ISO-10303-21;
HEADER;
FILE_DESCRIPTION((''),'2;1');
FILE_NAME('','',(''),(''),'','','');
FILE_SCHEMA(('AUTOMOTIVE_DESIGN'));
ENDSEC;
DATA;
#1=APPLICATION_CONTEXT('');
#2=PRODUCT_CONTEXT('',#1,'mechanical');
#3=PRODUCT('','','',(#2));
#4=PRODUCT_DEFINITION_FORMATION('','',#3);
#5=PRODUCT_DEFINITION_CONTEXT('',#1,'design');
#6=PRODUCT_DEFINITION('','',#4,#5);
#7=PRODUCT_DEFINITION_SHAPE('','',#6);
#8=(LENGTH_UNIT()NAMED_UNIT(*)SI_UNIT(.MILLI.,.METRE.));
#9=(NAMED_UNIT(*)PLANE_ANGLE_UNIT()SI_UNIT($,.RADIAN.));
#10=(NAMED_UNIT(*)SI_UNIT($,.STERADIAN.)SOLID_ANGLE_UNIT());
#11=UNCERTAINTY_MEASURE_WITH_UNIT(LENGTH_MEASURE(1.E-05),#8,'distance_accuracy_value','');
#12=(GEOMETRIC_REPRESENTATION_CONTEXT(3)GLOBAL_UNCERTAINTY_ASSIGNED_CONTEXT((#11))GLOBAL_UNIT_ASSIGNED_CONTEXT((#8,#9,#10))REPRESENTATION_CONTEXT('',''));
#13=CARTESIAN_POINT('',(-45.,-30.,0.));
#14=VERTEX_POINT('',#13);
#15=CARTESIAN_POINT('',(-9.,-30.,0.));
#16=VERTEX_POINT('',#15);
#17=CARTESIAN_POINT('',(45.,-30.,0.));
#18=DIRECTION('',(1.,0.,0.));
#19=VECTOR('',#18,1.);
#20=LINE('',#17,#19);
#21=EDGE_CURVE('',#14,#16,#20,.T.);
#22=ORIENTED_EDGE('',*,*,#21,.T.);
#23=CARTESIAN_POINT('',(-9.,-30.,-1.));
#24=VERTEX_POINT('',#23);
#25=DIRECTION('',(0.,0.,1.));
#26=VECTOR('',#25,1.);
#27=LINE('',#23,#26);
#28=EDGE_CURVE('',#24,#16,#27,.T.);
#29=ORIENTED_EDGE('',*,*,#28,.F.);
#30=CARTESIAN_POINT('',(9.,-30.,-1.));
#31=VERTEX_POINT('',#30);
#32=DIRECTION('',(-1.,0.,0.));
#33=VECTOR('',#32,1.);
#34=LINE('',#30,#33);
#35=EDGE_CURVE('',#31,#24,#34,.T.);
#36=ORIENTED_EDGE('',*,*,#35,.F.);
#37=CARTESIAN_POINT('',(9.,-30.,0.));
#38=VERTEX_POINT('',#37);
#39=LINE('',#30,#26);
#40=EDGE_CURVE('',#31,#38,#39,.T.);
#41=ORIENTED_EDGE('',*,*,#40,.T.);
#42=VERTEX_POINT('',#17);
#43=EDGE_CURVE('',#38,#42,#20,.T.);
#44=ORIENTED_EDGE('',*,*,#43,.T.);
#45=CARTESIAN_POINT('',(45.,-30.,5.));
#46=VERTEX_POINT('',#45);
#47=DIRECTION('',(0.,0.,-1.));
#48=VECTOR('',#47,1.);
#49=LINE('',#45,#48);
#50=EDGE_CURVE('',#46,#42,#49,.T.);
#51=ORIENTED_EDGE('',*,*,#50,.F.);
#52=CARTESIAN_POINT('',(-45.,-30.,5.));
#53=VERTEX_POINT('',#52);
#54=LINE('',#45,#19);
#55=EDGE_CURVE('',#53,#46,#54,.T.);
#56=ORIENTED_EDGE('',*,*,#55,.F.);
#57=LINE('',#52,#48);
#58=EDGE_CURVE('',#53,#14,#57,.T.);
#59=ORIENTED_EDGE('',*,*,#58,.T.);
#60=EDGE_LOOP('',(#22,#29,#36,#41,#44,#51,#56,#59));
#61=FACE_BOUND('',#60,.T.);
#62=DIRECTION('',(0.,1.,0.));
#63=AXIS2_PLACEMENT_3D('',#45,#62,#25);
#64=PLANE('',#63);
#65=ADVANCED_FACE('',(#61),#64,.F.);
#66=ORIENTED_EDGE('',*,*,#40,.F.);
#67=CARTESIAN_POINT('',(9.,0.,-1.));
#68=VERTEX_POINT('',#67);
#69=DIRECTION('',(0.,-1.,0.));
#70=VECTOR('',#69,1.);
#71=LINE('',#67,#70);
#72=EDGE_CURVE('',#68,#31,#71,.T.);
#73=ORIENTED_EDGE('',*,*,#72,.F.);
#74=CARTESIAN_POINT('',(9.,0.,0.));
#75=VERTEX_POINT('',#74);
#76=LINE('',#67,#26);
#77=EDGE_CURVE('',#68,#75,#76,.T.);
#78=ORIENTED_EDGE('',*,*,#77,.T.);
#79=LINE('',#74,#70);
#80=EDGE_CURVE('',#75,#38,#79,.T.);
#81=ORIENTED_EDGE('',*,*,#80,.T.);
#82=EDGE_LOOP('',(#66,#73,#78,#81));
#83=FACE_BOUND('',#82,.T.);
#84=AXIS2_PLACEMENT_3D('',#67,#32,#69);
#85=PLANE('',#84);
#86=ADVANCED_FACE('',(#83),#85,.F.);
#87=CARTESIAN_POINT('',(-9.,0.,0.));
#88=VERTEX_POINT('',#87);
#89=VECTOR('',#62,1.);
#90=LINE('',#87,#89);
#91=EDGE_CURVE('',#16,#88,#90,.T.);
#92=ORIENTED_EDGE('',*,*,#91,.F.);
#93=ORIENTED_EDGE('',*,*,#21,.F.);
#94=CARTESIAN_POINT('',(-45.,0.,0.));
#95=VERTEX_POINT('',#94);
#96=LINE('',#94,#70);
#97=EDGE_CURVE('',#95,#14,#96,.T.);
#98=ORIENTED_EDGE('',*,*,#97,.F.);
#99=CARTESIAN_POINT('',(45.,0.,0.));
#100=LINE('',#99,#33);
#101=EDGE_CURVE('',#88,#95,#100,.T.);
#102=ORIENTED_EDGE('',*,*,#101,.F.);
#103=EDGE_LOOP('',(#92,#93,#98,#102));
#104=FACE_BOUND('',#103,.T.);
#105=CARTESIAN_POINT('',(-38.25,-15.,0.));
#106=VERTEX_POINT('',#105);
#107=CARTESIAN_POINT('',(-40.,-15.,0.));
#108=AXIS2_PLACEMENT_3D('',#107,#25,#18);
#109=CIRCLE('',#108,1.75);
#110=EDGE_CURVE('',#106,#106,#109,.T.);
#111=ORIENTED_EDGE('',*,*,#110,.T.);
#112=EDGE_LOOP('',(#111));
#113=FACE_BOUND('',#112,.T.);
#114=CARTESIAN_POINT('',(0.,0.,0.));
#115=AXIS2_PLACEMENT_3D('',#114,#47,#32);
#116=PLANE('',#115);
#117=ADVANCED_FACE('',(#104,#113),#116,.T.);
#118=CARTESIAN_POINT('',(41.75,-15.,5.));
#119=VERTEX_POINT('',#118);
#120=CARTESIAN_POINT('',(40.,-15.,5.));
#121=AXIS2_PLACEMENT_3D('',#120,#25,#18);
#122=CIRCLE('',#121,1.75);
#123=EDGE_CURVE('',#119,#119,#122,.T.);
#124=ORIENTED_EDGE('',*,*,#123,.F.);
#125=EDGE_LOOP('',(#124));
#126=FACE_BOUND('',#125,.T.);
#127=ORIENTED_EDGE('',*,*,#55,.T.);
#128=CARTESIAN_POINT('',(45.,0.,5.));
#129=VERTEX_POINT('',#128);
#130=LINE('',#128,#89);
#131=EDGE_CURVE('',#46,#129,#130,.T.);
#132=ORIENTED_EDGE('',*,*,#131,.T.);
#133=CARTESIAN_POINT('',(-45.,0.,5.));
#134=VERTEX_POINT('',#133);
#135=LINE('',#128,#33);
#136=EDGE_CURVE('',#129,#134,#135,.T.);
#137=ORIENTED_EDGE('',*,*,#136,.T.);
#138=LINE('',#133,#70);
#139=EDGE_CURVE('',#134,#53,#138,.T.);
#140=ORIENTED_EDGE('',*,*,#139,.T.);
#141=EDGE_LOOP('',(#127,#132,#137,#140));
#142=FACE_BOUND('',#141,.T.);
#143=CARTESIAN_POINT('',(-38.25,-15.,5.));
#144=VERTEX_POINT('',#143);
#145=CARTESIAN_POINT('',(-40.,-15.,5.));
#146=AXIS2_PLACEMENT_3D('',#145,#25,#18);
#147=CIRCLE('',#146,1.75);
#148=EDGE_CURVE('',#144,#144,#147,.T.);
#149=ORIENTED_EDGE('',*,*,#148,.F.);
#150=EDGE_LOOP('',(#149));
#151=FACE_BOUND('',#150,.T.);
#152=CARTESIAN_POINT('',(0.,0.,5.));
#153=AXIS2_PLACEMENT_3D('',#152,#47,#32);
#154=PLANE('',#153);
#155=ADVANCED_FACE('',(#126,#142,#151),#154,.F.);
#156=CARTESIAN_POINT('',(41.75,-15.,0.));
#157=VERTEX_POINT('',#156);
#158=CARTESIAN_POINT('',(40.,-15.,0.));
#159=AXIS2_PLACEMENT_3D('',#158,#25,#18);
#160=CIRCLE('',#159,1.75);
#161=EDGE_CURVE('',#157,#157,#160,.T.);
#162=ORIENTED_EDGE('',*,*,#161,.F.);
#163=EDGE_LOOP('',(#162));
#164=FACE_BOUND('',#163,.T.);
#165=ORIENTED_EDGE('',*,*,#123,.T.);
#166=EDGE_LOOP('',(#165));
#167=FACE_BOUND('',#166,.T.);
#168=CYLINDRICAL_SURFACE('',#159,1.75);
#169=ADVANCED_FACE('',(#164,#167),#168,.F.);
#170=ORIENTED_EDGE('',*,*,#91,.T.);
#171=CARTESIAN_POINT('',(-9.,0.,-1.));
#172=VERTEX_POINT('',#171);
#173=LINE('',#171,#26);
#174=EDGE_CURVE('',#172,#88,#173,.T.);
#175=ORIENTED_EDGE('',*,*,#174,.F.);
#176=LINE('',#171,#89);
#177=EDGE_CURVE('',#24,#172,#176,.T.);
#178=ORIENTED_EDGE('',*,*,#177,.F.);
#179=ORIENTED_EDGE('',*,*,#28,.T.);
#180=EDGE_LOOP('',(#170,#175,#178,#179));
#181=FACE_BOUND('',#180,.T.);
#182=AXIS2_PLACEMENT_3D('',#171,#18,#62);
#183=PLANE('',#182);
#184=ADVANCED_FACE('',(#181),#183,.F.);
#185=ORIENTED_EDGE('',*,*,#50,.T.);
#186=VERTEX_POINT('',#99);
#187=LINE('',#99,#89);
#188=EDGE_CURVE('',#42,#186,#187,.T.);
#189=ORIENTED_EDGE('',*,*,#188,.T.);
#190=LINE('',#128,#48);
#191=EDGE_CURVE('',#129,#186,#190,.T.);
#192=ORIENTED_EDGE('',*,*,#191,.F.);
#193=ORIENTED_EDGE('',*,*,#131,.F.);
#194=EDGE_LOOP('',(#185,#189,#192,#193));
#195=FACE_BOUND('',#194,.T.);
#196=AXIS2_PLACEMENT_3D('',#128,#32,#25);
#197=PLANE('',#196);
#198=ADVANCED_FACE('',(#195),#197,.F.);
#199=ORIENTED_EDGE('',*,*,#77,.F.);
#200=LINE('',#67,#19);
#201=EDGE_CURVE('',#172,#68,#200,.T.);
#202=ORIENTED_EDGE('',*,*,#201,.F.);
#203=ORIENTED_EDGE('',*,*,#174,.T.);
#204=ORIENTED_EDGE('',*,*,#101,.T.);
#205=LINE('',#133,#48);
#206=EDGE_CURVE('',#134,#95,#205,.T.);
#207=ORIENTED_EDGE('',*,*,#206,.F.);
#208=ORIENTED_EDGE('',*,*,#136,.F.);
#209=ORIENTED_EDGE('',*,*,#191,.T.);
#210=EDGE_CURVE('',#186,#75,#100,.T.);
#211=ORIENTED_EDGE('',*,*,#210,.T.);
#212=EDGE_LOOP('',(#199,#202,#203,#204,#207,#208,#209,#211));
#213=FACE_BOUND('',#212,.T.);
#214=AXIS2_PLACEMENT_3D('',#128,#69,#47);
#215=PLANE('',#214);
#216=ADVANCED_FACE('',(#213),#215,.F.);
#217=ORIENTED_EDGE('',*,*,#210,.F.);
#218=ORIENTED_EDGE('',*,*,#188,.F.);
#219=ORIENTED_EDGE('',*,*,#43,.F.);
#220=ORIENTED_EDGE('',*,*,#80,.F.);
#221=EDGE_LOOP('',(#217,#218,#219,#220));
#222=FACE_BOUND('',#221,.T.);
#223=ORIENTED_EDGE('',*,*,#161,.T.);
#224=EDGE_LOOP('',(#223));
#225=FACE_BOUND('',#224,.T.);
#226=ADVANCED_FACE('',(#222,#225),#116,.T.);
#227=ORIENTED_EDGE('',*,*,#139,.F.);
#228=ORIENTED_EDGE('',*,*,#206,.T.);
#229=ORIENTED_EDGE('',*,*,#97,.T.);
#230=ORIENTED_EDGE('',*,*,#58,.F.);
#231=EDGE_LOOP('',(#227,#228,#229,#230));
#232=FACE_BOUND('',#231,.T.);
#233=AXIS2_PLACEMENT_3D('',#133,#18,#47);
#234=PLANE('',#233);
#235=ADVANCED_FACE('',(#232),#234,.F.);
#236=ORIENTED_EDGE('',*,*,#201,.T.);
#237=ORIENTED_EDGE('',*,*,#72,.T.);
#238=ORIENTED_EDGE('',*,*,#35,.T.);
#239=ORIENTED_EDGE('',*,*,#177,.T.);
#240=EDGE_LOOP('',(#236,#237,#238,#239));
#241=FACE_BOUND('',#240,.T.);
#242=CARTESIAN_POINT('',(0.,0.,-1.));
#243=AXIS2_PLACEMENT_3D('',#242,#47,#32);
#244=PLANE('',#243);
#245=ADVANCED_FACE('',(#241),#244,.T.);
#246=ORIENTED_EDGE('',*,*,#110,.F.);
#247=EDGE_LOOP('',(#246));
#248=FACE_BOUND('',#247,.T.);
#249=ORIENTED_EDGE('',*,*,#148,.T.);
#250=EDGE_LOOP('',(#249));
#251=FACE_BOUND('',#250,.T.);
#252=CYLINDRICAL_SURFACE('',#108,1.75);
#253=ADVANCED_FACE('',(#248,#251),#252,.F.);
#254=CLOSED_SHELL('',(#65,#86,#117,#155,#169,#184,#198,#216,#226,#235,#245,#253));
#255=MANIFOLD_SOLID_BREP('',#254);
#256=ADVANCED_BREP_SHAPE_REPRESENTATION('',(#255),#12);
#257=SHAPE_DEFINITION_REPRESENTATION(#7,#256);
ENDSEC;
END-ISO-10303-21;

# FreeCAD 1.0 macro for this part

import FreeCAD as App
import Part
import Sketcher
from FreeCAD import Vector
Q = App.Units.Quantity


def add_polygon(sketch, points):
    """Adds a closed chain of lines whose ends are joined by coincident constraints."""
    first, n = sketch.GeometryCount, len(points)
    for a, b in zip(points, points[1:] + points[:1]):
        sketch.addGeometry(Part.LineSegment(App.Vector(*a, 0), App.Vector(*b, 0)), False)
    for i in range(n):
        sketch.addConstraint(Sketcher.Constraint("Coincident", first + i, 2, first + (i + 1) % n, 1))

doc = App.newDocument("Part")
body = doc.addObject("PartDesign::Body", "Body")

sketch1 = body.newObject("Sketcher::SketchObject", "Sketch")
sketch1.AttachmentSupport = (doc.getObject("XY_Plane"), [""])
sketch1.MapMode = "FlatFace"
add_polygon(sketch1, [(-45, 0), (-45, -30), (45, -30), (45, 0)])
sketch1.addConstraint(Sketcher.Constraint("Vertical", 0))
sketch1.addConstraint(Sketcher.Constraint("Horizontal", 1))
sketch1.addConstraint(Sketcher.Constraint("Vertical", 2))
sketch1.addConstraint(Sketcher.Constraint("Horizontal", 3))
sketch1.addConstraint(Sketcher.Constraint("Symmetric", 2, 2, 3, 2, -1, 1))
sketch1.addConstraint(Sketcher.Constraint("DistanceX", 1, 1, 1, 2, Q("90 mm")))
sketch1.addConstraint(Sketcher.Constraint("DistanceY", 0, 2, 0, 1, Q("30 mm")))
pad1 = body.newObject("PartDesign::Pad", "Pad")
pad1.Profile = sketch1
pad1.Length = 5

sketch2 = body.newObject("Sketcher::SketchObject", "Sketch001")
sketch2.AttachmentSupport = (doc.getObject("XY_Plane"), [""])
sketch2.MapMode = "FlatFace"
sketch2.AttachmentOffset = App.Placement(Vector(0, 0, 5), App.Rotation())
sketch2.addGeometry(Part.Circle(Vector(40, -15, 0), Vector(0, 0, 1), 1.75), False)
sketch2.addGeometry(Part.Circle(Vector(-40, -15, 0), Vector(0, 0, 1), 1.75), False)
sketch2.addConstraint(Sketcher.Constraint("Equal", 0, 1))
sketch2.addConstraint(Sketcher.Constraint("Symmetric", 0, 3, 1, 3, -2))
sketch2.addConstraint(Sketcher.Constraint("Diameter", 0, Q("3.5 mm")))
sketch2.addConstraint(Sketcher.Constraint("DistanceX", -1, 1, 0, 3, Q("40 mm")))
sketch2.addConstraint(Sketcher.Constraint("DistanceY", 0, 3, -1, 1, Q("15 mm")))
pocket1 = body.newObject("PartDesign::Pocket", "Pocket")
pocket1.Profile = sketch2
pocket1.Type = "ThroughAll"

sketch3 = body.newObject("Sketcher::SketchObject", "Sketch002")
sketch3.AttachmentSupport = (doc.getObject("XY_Plane"), [""])
sketch3.MapMode = "FlatFace"
add_polygon(sketch3, [(9, 0), (9, -30), (-9, -30), (-9, 0)])
sketch3.addConstraint(Sketcher.Constraint("Vertical", 0))
sketch3.addConstraint(Sketcher.Constraint("Horizontal", 1))
sketch3.addConstraint(Sketcher.Constraint("Vertical", 2))
sketch3.addConstraint(Sketcher.Constraint("Horizontal", 3))
sketch3.addConstraint(Sketcher.Constraint("Symmetric", 2, 2, 3, 2, -1, 1))
sketch3.addConstraint(Sketcher.Constraint("DistanceX", 1, 2, 1, 1, Q("18 mm")))
sketch3.addConstraint(Sketcher.Constraint("DistanceY", 0, 2, 0, 1, Q("30 mm")))
pad2 = body.newObject("PartDesign::Pad", "Pad001")
pad2.Profile = sketch3
pad2.Length = 1
pad2.Reversed = True

doc.recompute()
